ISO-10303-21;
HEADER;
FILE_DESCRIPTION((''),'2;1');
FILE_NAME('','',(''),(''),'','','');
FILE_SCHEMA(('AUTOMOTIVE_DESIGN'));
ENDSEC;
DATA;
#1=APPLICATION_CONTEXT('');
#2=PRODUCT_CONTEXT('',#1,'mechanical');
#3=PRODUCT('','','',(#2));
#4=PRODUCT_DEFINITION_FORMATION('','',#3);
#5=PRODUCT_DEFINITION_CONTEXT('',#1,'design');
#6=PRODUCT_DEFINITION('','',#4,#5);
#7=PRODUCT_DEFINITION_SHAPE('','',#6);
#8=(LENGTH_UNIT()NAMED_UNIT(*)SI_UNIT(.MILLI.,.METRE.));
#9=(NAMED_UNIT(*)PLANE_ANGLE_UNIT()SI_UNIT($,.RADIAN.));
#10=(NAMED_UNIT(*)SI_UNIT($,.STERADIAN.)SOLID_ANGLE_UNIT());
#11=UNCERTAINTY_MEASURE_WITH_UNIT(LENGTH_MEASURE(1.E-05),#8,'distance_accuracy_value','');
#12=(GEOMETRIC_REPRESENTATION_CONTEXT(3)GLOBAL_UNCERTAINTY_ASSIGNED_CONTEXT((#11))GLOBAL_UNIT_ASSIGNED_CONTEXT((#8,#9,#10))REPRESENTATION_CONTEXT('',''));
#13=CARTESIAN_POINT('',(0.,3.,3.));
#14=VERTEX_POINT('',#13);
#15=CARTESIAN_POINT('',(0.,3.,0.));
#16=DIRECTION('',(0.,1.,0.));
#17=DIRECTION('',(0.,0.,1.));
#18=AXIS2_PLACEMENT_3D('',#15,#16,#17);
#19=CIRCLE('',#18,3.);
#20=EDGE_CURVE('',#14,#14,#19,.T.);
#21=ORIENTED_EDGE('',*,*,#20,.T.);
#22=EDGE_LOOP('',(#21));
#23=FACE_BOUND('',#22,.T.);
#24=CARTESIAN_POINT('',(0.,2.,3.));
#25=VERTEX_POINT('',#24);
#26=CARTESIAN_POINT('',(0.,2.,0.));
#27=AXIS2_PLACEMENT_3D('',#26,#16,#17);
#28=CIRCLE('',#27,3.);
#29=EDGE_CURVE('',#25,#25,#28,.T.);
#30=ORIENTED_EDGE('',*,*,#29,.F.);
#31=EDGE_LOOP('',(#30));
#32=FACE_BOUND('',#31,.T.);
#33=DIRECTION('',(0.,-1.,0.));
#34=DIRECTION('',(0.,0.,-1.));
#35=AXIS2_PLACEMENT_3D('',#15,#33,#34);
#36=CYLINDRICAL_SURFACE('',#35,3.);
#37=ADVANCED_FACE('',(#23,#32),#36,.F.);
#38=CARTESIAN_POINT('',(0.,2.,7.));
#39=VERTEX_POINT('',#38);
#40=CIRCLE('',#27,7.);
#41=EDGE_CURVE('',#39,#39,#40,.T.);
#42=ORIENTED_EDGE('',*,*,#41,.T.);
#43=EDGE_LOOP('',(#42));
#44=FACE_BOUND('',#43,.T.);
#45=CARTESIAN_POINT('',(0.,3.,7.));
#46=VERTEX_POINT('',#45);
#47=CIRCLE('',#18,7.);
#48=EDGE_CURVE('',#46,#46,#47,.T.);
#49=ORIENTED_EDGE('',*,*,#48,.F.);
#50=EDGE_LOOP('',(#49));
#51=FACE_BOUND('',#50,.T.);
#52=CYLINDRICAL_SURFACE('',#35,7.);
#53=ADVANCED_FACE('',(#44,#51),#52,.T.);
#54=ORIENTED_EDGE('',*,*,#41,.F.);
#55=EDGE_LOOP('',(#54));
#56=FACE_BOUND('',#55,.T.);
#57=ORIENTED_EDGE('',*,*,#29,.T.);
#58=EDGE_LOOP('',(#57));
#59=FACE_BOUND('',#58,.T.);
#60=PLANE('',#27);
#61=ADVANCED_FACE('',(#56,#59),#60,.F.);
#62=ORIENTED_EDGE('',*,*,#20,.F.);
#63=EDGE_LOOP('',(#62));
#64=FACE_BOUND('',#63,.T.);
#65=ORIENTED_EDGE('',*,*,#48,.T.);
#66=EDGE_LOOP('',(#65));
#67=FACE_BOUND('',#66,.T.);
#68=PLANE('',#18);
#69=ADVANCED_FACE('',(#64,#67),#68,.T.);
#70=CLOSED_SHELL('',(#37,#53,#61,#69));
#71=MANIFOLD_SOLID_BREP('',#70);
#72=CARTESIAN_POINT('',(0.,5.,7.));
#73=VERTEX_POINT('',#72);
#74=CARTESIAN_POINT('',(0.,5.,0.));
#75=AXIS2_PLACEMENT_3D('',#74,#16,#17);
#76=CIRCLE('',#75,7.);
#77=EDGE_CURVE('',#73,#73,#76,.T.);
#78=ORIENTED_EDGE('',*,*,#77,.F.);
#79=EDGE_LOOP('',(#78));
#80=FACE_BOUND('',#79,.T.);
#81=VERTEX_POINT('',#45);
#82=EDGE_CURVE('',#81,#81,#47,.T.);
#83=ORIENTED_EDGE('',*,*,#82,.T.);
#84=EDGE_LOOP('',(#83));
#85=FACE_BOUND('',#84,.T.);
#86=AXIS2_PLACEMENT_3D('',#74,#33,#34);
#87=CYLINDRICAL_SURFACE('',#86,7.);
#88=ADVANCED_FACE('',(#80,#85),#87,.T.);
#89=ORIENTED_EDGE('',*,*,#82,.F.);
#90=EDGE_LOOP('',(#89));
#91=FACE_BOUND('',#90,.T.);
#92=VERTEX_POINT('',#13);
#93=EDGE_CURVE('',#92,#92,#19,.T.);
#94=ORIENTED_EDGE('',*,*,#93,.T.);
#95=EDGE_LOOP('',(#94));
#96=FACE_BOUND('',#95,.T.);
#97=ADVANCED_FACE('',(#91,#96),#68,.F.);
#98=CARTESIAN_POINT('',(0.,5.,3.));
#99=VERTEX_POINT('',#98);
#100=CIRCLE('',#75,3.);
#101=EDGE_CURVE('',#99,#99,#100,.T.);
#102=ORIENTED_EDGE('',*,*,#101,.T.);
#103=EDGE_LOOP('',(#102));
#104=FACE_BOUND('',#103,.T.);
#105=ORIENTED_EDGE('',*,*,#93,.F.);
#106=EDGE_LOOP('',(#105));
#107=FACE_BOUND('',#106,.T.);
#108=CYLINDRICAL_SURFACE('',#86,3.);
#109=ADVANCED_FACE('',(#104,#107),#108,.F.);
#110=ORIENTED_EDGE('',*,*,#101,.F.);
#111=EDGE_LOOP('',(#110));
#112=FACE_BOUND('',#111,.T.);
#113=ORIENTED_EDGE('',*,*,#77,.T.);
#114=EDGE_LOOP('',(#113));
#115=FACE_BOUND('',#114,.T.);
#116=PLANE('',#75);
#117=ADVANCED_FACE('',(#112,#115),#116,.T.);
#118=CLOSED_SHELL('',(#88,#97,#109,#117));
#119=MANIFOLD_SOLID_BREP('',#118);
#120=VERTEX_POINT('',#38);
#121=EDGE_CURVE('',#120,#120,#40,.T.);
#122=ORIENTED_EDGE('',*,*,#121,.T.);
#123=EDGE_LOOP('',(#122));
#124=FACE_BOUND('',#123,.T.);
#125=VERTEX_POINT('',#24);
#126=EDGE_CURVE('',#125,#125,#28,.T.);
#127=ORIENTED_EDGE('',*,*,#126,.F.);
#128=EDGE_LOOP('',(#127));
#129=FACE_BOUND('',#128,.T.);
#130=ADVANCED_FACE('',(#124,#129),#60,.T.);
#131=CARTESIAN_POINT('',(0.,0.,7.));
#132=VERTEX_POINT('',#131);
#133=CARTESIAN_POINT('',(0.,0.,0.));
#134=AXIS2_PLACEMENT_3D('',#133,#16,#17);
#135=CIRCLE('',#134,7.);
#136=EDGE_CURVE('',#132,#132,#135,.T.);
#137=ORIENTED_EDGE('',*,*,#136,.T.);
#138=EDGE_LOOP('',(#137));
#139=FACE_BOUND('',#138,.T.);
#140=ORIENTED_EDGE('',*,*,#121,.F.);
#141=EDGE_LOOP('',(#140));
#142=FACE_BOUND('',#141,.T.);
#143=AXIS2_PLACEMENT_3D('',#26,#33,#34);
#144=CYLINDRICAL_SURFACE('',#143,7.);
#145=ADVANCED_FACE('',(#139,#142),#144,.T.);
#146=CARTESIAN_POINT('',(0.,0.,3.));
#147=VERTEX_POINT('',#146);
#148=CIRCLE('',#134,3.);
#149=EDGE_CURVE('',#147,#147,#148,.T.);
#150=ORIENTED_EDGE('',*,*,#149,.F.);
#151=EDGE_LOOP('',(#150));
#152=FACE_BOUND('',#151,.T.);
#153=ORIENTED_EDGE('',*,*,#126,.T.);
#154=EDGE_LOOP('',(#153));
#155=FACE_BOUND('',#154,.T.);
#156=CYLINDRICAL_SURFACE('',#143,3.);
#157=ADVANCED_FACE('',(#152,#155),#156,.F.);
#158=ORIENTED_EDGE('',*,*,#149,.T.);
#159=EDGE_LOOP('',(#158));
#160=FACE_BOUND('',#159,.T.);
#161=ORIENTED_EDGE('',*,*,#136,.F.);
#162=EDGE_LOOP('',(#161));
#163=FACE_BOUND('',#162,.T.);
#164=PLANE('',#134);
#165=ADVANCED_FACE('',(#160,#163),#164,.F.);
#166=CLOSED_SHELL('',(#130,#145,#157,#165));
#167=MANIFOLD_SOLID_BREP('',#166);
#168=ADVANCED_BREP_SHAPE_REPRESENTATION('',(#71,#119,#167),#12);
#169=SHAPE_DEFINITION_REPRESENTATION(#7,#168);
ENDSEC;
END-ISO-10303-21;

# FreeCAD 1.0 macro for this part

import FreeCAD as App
import Part
import Sketcher

V = App.Vector
Q = App.Units.Quantity

doc = App.newDocument("Part")
body = doc.addObject("PartDesign::Body", "Body")

# Sketch on XZ plane
sketch1 = doc.addObject("Sketcher::SketchObject", "Sketch")
body.addObject(sketch1)
sketch1.AttachmentSupport = (doc.XZ_Plane, [""])
sketch1.MapMode = "FlatFace"
sketch1.addGeometry(Part.Circle(V(0, 0, 0), V(0, 0, 1), 7), False)
sketch1.addGeometry(Part.Circle(V(0, 0, 0), V(0, 0, 1), 3), False)
sketch1.addConstraint(Sketcher.Constraint("Coincident", 0, 3, -1, 1))
sketch1.addConstraint(Sketcher.Constraint("Coincident", 1, 3, -1, 1))
sketch1.addConstraint(Sketcher.Constraint("Diameter", 0, Q("14 mm")))
sketch1.addConstraint(Sketcher.Constraint("Diameter", 1, Q("6 mm")))
pad1 = doc.addObject("PartDesign::Pad", "Pad")
body.addObject(pad1)
pad1.Profile = sketch1
pad1.Length = 2
pad1.Reversed = True
body2 = doc.addObject("PartDesign::Body", "Body001")

# Sketch on XZ plane
sketch2 = doc.addObject("Sketcher::SketchObject", "Sketch001")
body2.addObject(sketch2)
sketch2.AttachmentSupport = (doc.getObject("XZ_Plane001"), [""])
sketch2.MapMode = "FlatFace"
sketch2.AttachmentOffset = App.Placement(V(0, 0, -2), App.Rotation())
sketch2.addGeometry(Part.Circle(V(0, 0, 0), V(0, 0, 1), 7), False)
sketch2.addGeometry(Part.Circle(V(0, 0, 0), V(0, 0, 1), 3), False)
sketch2.addConstraint(Sketcher.Constraint("Coincident", 0, 3, -1, 1))
sketch2.addConstraint(Sketcher.Constraint("Coincident", 1, 3, -1, 1))
sketch2.addConstraint(Sketcher.Constraint("Diameter", 0, Q("14 mm")))
sketch2.addConstraint(Sketcher.Constraint("Diameter", 1, Q("6 mm")))
pad2 = doc.addObject("PartDesign::Pad", "Pad001")
body2.addObject(pad2)
pad2.Profile = sketch2
pad2.Length = 1
pad2.Reversed = True
body3 = doc.addObject("PartDesign::Body", "Body002")

# Sketch on XZ plane
sketch3 = doc.addObject("Sketcher::SketchObject", "Sketch002")
body3.addObject(sketch3)
sketch3.AttachmentSupport = (doc.getObject("XZ_Plane002"), [""])
sketch3.MapMode = "FlatFace"
sketch3.AttachmentOffset = App.Placement(V(0, 0, -3), App.Rotation())
sketch3.addGeometry(Part.Circle(V(0, 0, 0), V(0, 0, 1), 7), False)
sketch3.addGeometry(Part.Circle(V(0, 0, 0), V(0, 0, 1), 3), False)
sketch3.addConstraint(Sketcher.Constraint("Coincident", 0, 3, -1, 1))
sketch3.addConstraint(Sketcher.Constraint("Coincident", 1, 3, -1, 1))
sketch3.addConstraint(Sketcher.Constraint("Diameter", 0, Q("14 mm")))
sketch3.addConstraint(Sketcher.Constraint("Diameter", 1, Q("6 mm")))
pad3 = doc.addObject("PartDesign::Pad", "Pad002")
body3.addObject(pad3)
pad3.Profile = sketch3
pad3.Length = 2
pad3.Reversed = True

doc.recompute()
